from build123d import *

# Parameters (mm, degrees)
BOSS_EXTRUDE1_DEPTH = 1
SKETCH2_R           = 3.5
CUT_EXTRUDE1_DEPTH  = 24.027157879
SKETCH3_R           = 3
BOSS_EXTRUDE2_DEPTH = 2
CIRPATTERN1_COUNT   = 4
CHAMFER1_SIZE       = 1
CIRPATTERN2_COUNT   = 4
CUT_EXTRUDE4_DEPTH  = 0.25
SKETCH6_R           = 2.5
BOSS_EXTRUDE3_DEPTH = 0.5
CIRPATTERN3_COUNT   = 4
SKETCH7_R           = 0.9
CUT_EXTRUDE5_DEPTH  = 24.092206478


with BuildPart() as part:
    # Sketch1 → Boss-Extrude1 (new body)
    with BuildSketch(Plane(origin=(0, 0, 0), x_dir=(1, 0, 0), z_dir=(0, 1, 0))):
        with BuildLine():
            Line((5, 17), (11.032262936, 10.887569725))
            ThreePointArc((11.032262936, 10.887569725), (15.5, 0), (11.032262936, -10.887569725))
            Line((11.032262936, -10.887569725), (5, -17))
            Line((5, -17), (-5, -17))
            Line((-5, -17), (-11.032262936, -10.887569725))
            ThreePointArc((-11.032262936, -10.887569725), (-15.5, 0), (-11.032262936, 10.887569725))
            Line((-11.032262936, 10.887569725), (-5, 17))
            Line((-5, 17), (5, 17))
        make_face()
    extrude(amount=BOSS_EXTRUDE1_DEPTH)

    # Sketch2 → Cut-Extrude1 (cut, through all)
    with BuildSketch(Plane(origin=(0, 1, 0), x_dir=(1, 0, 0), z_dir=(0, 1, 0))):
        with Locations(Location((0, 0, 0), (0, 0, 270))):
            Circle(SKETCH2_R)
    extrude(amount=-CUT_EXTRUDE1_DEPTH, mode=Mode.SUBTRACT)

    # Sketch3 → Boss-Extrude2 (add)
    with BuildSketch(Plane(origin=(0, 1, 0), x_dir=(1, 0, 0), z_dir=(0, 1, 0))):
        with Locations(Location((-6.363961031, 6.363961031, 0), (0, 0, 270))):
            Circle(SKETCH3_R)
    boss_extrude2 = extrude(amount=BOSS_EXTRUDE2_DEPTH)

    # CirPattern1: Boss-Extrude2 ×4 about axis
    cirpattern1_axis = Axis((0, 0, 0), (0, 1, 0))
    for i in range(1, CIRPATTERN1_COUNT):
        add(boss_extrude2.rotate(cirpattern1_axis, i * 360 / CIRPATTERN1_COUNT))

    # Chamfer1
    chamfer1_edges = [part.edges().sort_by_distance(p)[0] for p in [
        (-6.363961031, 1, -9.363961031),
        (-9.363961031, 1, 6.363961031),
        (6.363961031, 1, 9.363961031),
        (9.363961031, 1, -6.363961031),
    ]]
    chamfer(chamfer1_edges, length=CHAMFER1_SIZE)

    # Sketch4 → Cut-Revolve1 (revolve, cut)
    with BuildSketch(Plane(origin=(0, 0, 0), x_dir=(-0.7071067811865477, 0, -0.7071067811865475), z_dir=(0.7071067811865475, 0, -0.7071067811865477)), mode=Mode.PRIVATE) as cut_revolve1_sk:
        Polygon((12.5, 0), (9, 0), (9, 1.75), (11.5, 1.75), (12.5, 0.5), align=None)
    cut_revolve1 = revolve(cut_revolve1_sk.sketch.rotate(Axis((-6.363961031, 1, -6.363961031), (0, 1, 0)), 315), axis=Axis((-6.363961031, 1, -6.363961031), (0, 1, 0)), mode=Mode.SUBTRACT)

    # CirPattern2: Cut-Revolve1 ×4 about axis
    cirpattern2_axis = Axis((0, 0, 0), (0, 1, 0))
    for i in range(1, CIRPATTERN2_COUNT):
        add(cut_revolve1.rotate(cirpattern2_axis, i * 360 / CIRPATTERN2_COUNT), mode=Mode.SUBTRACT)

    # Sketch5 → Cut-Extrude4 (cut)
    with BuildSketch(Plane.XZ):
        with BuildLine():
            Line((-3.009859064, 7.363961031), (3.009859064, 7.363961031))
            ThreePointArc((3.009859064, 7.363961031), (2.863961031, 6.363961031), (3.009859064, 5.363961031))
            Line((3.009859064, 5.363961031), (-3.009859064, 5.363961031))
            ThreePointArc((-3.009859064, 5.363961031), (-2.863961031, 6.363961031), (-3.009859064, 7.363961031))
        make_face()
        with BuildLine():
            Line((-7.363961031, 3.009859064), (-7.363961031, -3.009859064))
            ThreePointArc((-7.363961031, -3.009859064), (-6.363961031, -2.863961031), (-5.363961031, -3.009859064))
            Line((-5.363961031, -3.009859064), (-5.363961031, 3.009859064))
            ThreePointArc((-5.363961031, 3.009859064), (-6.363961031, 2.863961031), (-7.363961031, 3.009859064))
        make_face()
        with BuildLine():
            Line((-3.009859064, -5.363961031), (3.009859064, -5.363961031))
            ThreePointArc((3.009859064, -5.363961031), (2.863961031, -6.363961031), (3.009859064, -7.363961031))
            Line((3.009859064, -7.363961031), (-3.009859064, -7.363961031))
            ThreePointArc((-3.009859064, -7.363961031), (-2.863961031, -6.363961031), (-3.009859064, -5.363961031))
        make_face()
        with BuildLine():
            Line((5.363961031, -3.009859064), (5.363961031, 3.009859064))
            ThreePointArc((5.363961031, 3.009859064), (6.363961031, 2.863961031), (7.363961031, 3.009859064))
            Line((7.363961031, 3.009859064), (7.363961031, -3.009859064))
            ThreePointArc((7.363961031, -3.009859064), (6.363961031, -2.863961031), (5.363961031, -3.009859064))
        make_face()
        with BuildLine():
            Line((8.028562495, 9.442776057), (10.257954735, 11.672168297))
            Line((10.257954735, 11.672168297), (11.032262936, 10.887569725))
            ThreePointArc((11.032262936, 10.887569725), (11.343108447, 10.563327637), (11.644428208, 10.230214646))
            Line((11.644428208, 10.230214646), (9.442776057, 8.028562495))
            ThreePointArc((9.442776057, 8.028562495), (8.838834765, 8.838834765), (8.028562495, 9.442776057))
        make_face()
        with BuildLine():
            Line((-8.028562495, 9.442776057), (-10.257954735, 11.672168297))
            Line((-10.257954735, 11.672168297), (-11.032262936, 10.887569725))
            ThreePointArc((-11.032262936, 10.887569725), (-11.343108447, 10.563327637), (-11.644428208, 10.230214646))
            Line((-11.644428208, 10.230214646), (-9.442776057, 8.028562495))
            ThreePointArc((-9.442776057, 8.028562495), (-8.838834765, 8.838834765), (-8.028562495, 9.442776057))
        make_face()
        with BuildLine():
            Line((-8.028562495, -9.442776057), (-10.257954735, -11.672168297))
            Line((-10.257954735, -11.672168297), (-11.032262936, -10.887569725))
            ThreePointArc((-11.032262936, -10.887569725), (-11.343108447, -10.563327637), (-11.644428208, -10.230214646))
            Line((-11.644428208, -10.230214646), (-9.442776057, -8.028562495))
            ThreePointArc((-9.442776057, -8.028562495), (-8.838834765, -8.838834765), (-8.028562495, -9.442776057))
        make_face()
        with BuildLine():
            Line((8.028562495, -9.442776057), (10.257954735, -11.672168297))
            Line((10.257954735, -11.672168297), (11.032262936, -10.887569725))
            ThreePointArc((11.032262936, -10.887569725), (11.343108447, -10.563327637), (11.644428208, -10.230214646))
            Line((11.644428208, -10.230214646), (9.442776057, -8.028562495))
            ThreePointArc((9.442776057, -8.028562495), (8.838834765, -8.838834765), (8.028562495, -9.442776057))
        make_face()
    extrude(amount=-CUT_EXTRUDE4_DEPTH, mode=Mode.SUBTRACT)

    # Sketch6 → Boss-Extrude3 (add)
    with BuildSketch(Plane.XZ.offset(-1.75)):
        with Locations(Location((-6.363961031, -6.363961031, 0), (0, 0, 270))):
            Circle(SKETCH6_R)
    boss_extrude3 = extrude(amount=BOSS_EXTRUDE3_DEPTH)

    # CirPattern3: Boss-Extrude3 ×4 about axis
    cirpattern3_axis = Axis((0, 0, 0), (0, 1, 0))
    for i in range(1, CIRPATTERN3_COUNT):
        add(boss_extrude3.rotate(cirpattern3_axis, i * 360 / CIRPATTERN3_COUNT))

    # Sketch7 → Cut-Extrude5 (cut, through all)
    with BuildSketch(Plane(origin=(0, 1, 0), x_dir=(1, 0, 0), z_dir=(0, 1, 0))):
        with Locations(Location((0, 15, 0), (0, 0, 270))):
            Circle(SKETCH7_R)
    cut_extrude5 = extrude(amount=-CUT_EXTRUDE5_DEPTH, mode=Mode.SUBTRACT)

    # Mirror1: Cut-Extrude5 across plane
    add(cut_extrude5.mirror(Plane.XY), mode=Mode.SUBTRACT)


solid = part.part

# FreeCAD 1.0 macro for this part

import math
import FreeCAD as App
import Part
import Sketcher
from FreeCAD import Vector


def edges_at(feature, points):
    """Names of the edges that pass closest to the given points."""
    edges = feature.Shape.Edges
    near = lambda p: min(range(len(edges)), key=lambda i: edges[i].distToShape(Part.Vertex(*p))[0])
    return sorted({f"Edge{near(p) + 1}" for p in points})


def add_polygon(sketch, points):
    """Adds a closed chain of lines whose ends are joined by coincident constraints."""
    first, n = sketch.GeometryCount, len(points)
    for a, b in zip(points, points[1:] + points[:1]):
        sketch.addGeometry(Part.LineSegment(App.Vector(*a, 0), App.Vector(*b, 0)), False)
    for i in range(n):
        sketch.addConstraint(Sketcher.Constraint("Coincident", first + i, 2, first + (i + 1) % n, 1))

doc = App.newDocument("Part")
body = doc.addObject("PartDesign::Body", "Body")

# Sketch on XZ plane
sketch1 = body.newObject("Sketcher::SketchObject", "Sketch")
sketch1.AttachmentSupport = (doc.getObject("XZ_Plane"), [""])
sketch1.MapMode = "FlatFace"
sketch1.addGeometry([
    Part.LineSegment(Vector(11, -11, 0), Vector(5, -17, 0)),  # 0
    Part.LineSegment(Vector(5, -17, 0), Vector(-5, -17, 0)),  # 1
    Part.LineSegment(Vector(-5, -17, 0), Vector(-11, -11, 0)),  # 2
    Part.ArcOfCircle(Part.Circle(Vector(0, 0, 0), Vector(0, 0, 1), 16), math.radians(135), math.radians(225)),  # 3
    Part.LineSegment(Vector(-11, 11, 0), Vector(-5, 17, 0)),  # 4
    Part.LineSegment(Vector(-5, 17, 0), Vector(5, 17, 0)),  # 5
    Part.LineSegment(Vector(5, 17, 0), Vector(11, 11, 0)),  # 6
    Part.ArcOfCircle(Part.Circle(Vector(0, 0, 0), Vector(0, 0, 1), 16), math.radians(-45), math.radians(45)),  # 7
], False)
sketch1.addConstraint([
    Sketcher.Constraint("Coincident", 0, 2, 1, 1),
    Sketcher.Constraint("Coincident", 1, 2, 2, 1),
    Sketcher.Constraint("Tangent", 2, 2, 3, 2),
    Sketcher.Constraint("Tangent", 3, 1, 4, 1),
    Sketcher.Constraint("Coincident", 4, 2, 5, 1),
    Sketcher.Constraint("Coincident", 5, 2, 6, 1),
    Sketcher.Constraint("Tangent", 6, 2, 7, 2),
    Sketcher.Constraint("Tangent", 7, 1, 0, 1),
    Sketcher.Constraint("Horizontal", 1),
    Sketcher.Constraint("Horizontal", 5),
    Sketcher.Constraint("Coincident", 3, 3, -1, 1),
    Sketcher.Constraint("Coincident", 7, 3, -1, 1),
    Sketcher.Constraint("Equal", 3, 7),
    Sketcher.Constraint("Symmetric", 0, 2, 4, 2, -1, 1),
    Sketcher.Constraint("Parallel", 2, 6),
    Sketcher.Constraint("Horizontal", 3, 1, 6, 2),
    Sketcher.Constraint("Radius", 3, 15.5),
    Sketcher.Constraint("DistanceX", 1, 2, 1, 1, 10.0),
    Sketcher.Constraint("DistanceY", 0, 2, -1, 1, 17.0),
])
pad1 = body.newObject("PartDesign::Pad", "Pad")
pad1.Profile = sketch1
pad1.Length = 1
pad1.Reversed = True

# Sketch on XZ plane
sketch2 = body.newObject("Sketcher::SketchObject", "Sketch001")
sketch2.AttachmentSupport = (doc.getObject("XZ_Plane"), [""])
sketch2.MapMode = "FlatFace"
sketch2.AttachmentOffset = App.Placement(Vector(0, 0, -1), App.Rotation())
sketch2.addGeometry(Part.Circle(Vector(0, 0, 0), Vector(0, 0, 1), 3.5), False)
sketch2.addConstraint([
    Sketcher.Constraint("Coincident", 0, 3, -1, 1),
    Sketcher.Constraint("Diameter", 0, 7.0),
])
pocket1 = body.newObject("PartDesign::Pocket", "Pocket")
pocket1.Profile = sketch2
pocket1.Type = "ThroughAll"
pocket1.Reversed = True

# Sketch on XZ plane
sketch3 = body.newObject("Sketcher::SketchObject", "Sketch002")
sketch3.AttachmentSupport = (doc.getObject("XZ_Plane"), [""])
sketch3.MapMode = "FlatFace"
sketch3.AttachmentOffset = App.Placement(Vector(0, 0, -1), App.Rotation())
sketch3.addGeometry(Part.Circle(Vector(-6.4, -6.4, 0), Vector(0, 0, 1), 3), False)
sketch3.addConstraint([
    Sketcher.Constraint("Diameter", 0, 6.0),
    Sketcher.Constraint("DistanceX", 0, 3, -1, 1, 6.363961),
    Sketcher.Constraint("DistanceY", 0, 3, -1, 1, 6.363961),
])
pad2 = body.newObject("PartDesign::Pad", "Pad001")
pad2.Profile = sketch3
pad2.Length = 2
pad2.Reversed = True
doc.recompute()

polarpattern = body.newObject("PartDesign::PolarPattern", "PolarPattern")
polarpattern.Originals = [pad2]
polarpattern.Axis = (doc.getObject("Y_Axis"), [""])
polarpattern.Angle = 360
polarpattern.Occurrences = 4
body.Tip = polarpattern
doc.recompute()

chamfer = body.newObject("PartDesign::Chamfer", "Chamfer")
chamfer.Base = (polarpattern, edges_at(polarpattern, [
    (-6.364, 1, -9.364),
    (-9.364, 1, 6.364),
    (6.364, 1, 9.364),
    (9.364, 1, -6.364),
]))
chamfer.Size = 1

# Sketch on an angled plane
sketch4 = body.newObject("Sketcher::SketchObject", "Sketch003")
sketch4.Placement = App.Placement(Vector(0, 0, 0), App.Rotation(Vector(-0.707106781, 0, -0.707106781), Vector(0, 0.999999999, 0), Vector(0.707106781, 0, -0.707106781), "ZXY"))
add_polygon(sketch4, [(9, 0), (12.5, 0), (12.5, 0.5), (11.5, 1.75), (9, 1.75)])  # lines 0-4
sketch4.addGeometry(Part.LineSegment(Vector(9, 0, 0), Vector(9, 1.75, 0)), True)  # axis
sketch4.addConstraint([
    Sketcher.Constraint("Horizontal", 0),
    Sketcher.Constraint("Vertical", 1),
    Sketcher.Constraint("Horizontal", 3),
    Sketcher.Constraint("Vertical", 4),
    Sketcher.Constraint("Vertical", 5),
    Sketcher.Constraint("Coincident", 5, 1, 4, 2),
    Sketcher.Constraint("PointOnObject", 0, 2, -1),
    Sketcher.Constraint("Horizontal", 2, 2, 5, 2),
    Sketcher.Constraint("DistanceX", 0, 1, 0, 2, 3.5),
    Sketcher.Constraint("DistanceX", 3, 2, 3, 1, 2.5),
    Sketcher.Constraint("DistanceY", 1, 1, 1, 2, 0.5),
    Sketcher.Constraint("DistanceX", -1, 1, 3, 2, 9.0),
    Sketcher.Constraint("DistanceY", 4, 2, 4, 1, 1.75),
])
groove = body.newObject("PartDesign::Groove", "Groove")
groove.Profile = sketch4
groove.ReferenceAxis = (sketch4, ["Axis0"])
groove.Angle = 360
doc.recompute()

polarpattern2 = body.newObject("PartDesign::PolarPattern", "PolarPattern001")
polarpattern2.Originals = [groove]
polarpattern2.Axis = (doc.getObject("Y_Axis"), [""])
polarpattern2.Angle = 360
polarpattern2.Occurrences = 4
body.Tip = polarpattern2

# Sketch on XZ plane
sketch5 = body.newObject("Sketcher::SketchObject", "Sketch004")
sketch5.AttachmentSupport = (doc.getObject("XZ_Plane"), [""])
sketch5.MapMode = "FlatFace"
sketch5.addGeometry([
    Part.LineSegment(Vector(3, 7.4, 0), Vector(-3, 7.4, 0)),  # 0
    Part.ArcOfCircle(Part.Circle(Vector(-6.4, 6.4, 0), Vector(0, 0, 1), 3.5), math.radians(-17), math.radians(17)),  # 1
    Part.LineSegment(Vector(-3, 5.4, 0), Vector(3, 5.4, 0)),  # 2
    Part.ArcOfCircle(Part.Circle(Vector(6.4, 6.4, 0), Vector(0, 0, 1), 3.5), math.radians(163), math.radians(197)),  # 3
    Part.LineSegment(Vector(-7.4, 3, 0), Vector(-7.4, -3, 0)),  # 4
    Part.ArcOfCircle(Part.Circle(Vector(-6.4, -6.4, 0), Vector(0, 0, 1), 3.5), math.radians(73), math.radians(107)),  # 5
    Part.LineSegment(Vector(-5.4, -3, 0), Vector(-5.4, 3, 0)),  # 6
    Part.ArcOfCircle(Part.Circle(Vector(-6.4, 6.4, 0), Vector(0, 0, 1), 3.5), math.radians(-107), math.radians(-73)),  # 7
    Part.LineSegment(Vector(3, -5.4, 0), Vector(-3, -5.4, 0)),  # 8
    Part.ArcOfCircle(Part.Circle(Vector(-6.4, -6.4, 0), Vector(0, 0, 1), 3.5), math.radians(-17), math.radians(17)),  # 9
    Part.LineSegment(Vector(-3, -7.4, 0), Vector(3, -7.4, 0)),  # 10
    Part.ArcOfCircle(Part.Circle(Vector(6.4, -6.4, 0), Vector(0, 0, 1), 3.5), math.radians(163), math.radians(197)),  # 11
    Part.LineSegment(Vector(5.4, 3, 0), Vector(5.4, -3, 0)),  # 12
    Part.ArcOfCircle(Part.Circle(Vector(6.4, -6.4, 0), Vector(0, 0, 1), 3.5), math.radians(73), math.radians(107)),  # 13
    Part.LineSegment(Vector(7.4, -3, 0), Vector(7.4, 3, 0)),  # 14
    Part.ArcOfCircle(Part.Circle(Vector(6.4, 6.4, 0), Vector(0, 0, 1), 3.5), math.radians(-107), math.radians(-73)),  # 15
    Part.LineSegment(Vector(10.3, 11.7, 0), Vector(8, 9.4, 0)),  # 16
    Part.ArcOfCircle(Part.Circle(Vector(6.4, 6.4, 0), Vector(0, 0, 1), 3.5), math.radians(28), math.radians(62)),  # 17
    Part.LineSegment(Vector(9.4, 8, 0), Vector(11.6, 10.2, 0)),  # 18
    Part.ArcOfCircle(Part.Circle(Vector(0, 0, 0), Vector(0, 0, 1), 15.5), math.radians(41.3), math.radians(44.62)),  # 19
    Part.LineSegment(Vector(11, 10.9, 0), Vector(10.3, 11.7, 0)),  # 20
    Part.LineSegment(Vector(-8, 9.4, 0), Vector(-10.3, 11.7, 0)),  # 21
    Part.LineSegment(Vector(-10.3, 11.7, 0), Vector(-11, 10.9, 0)),  # 22
    Part.ArcOfCircle(Part.Circle(Vector(0, 0, 0), Vector(0, 0, 1), 15.5), math.radians(135.38), math.radians(138.7)),  # 23
    Part.LineSegment(Vector(-11.6, 10.2, 0), Vector(-9.4, 8, 0)),  # 24
    Part.ArcOfCircle(Part.Circle(Vector(-6.4, 6.4, 0), Vector(0, 0, 1), 3.5), math.radians(118), math.radians(152)),  # 25
    Part.LineSegment(Vector(-10.3, -11.7, 0), Vector(-8, -9.4, 0)),  # 26
    Part.ArcOfCircle(Part.Circle(Vector(-6.4, -6.4, 0), Vector(0, 0, 1), 3.5), math.radians(-152), math.radians(-118)),  # 27
    Part.LineSegment(Vector(-9.4, -8, 0), Vector(-11.6, -10.2, 0)),  # 28
    Part.ArcOfCircle(Part.Circle(Vector(0, 0, 0), Vector(0, 0, 1), 15.5), math.radians(-138.7), math.radians(-135.38)),  # 29
    Part.LineSegment(Vector(-11, -10.9, 0), Vector(-10.3, -11.7, 0)),  # 30
    Part.LineSegment(Vector(8, -9.4, 0), Vector(10.3, -11.7, 0)),  # 31
    Part.LineSegment(Vector(10.3, -11.7, 0), Vector(11, -10.9, 0)),  # 32
    Part.ArcOfCircle(Part.Circle(Vector(0, 0, 0), Vector(0, 0, 1), 15.5), math.radians(-44.62), math.radians(-41.3)),  # 33
    Part.LineSegment(Vector(11.6, -10.2, 0), Vector(9.4, -8, 0)),  # 34
    Part.ArcOfCircle(Part.Circle(Vector(6.4, -6.4, 0), Vector(0, 0, 1), 3.5), math.radians(-62), math.radians(-28)),  # 35
], False)
sketch5.addConstraint([
    Sketcher.Constraint("Coincident", 0, 2, 1, 2),
    Sketcher.Constraint("Coincident", 1, 1, 2, 1),
    Sketcher.Constraint("Coincident", 2, 2, 3, 2),
    Sketcher.Constraint("Coincident", 3, 1, 0, 1),
    Sketcher.Constraint("Coincident", 4, 2, 5, 2),
    Sketcher.Constraint("Coincident", 5, 1, 6, 1),
    Sketcher.Constraint("Coincident", 6, 2, 7, 2),
    Sketcher.Constraint("Coincident", 7, 1, 4, 1),
    Sketcher.Constraint("Coincident", 8, 2, 9, 2),
    Sketcher.Constraint("Coincident", 9, 1, 10, 1),
    Sketcher.Constraint("Coincident", 10, 2, 11, 2),
    Sketcher.Constraint("Coincident", 11, 1, 8, 1),
    Sketcher.Constraint("Coincident", 12, 2, 13, 2),
    Sketcher.Constraint("Coincident", 13, 1, 14, 1),
    Sketcher.Constraint("Coincident", 14, 2, 15, 2),
    Sketcher.Constraint("Coincident", 15, 1, 12, 1),
    Sketcher.Constraint("Coincident", 16, 2, 17, 2),
    Sketcher.Constraint("Coincident", 17, 1, 18, 1),
    Sketcher.Constraint("Coincident", 18, 2, 19, 1),
    Sketcher.Constraint("Tangent", 19, 2, 20, 1),
    Sketcher.Constraint("Coincident", 20, 2, 16, 1),
    Sketcher.Constraint("Coincident", 21, 2, 22, 1),
    Sketcher.Constraint("Tangent", 22, 2, 23, 1),
    Sketcher.Constraint("Coincident", 23, 2, 24, 1),
    Sketcher.Constraint("Coincident", 24, 2, 25, 2),
    Sketcher.Constraint("Coincident", 25, 1, 21, 1),
    Sketcher.Constraint("Coincident", 26, 2, 27, 2),
    Sketcher.Constraint("Coincident", 27, 1, 28, 1),
    Sketcher.Constraint("Coincident", 28, 2, 29, 1),
    Sketcher.Constraint("Tangent", 29, 2, 30, 1),
    Sketcher.Constraint("Coincident", 30, 2, 26, 1),
    Sketcher.Constraint("Coincident", 31, 2, 32, 1),
    Sketcher.Constraint("Tangent", 32, 2, 33, 1),
    Sketcher.Constraint("Coincident", 33, 2, 34, 1),
    Sketcher.Constraint("Coincident", 34, 2, 35, 2),
    Sketcher.Constraint("Coincident", 35, 1, 31, 1),
    Sketcher.Constraint("Horizontal", 0),
    Sketcher.Constraint("Horizontal", 2),
    Sketcher.Constraint("Vertical", 4),
    Sketcher.Constraint("Vertical", 6),
    Sketcher.Constraint("Horizontal", 8),
    Sketcher.Constraint("Horizontal", 10),
    Sketcher.Constraint("Vertical", 12),
    Sketcher.Constraint("Vertical", 14),
    Sketcher.Constraint("Coincident", 19, 3, -1, 1),
    Sketcher.Constraint("Coincident", 23, 3, -1, 1),
    Sketcher.Constraint("Coincident", 29, 3, -1, 1),
    Sketcher.Constraint("Coincident", 33, 3, -1, 1),
    Sketcher.Constraint("Coincident", 7, 3, 1, 3),
    Sketcher.Constraint("Coincident", 9, 3, 5, 3),
    Sketcher.Constraint("Coincident", 13, 3, 11, 3),
    Sketcher.Constraint("Coincident", 15, 3, 3, 3),
    Sketcher.Constraint("Coincident", 17, 3, 3, 3),
    Sketcher.Constraint("Coincident", 25, 3, 1, 3),
    Sketcher.Constraint("Coincident", 27, 3, 5, 3),
    Sketcher.Constraint("Coincident", 35, 3, 11, 3),
    Sketcher.Constraint("Equal", 1, 3),
    Sketcher.Constraint("Equal", 3, 5),
    Sketcher.Constraint("Equal", 5, 7),
    Sketcher.Constraint("Equal", 7, 9),
    Sketcher.Constraint("Equal", 9, 11),
    Sketcher.Constraint("Equal", 11, 13),
    Sketcher.Constraint("Equal", 13, 15),
    Sketcher.Constraint("Equal", 15, 17),
    Sketcher.Constraint("Equal", 19, 23),
    Sketcher.Constraint("Equal", 17, 25),
    Sketcher.Constraint("Equal", 25, 27),
    Sketcher.Constraint("Equal", 23, 29),
    Sketcher.Constraint("Equal", 29, 33),
    Sketcher.Constraint("Equal", 27, 35),
    Sketcher.Constraint("Symmetric", 3, 3, 5, 3, -1, 1),
    Sketcher.Constraint("Symmetric", 1, 3, 11, 3, -1, 1),
    Sketcher.Constraint("Symmetric", 20, 2, 30, 2, -1, 1),
    Sketcher.Constraint("Symmetric", 21, 2, 31, 2, -1, 1),
    Sketcher.Constraint("Symmetric", 1, 3, 3, 3, -2),
    Sketcher.Constraint("Symmetric", 20, 2, 21, 2, -2),
    Sketcher.Constraint("Parallel", 16, 18),
    Sketcher.Constraint("Perpendicular", 18, 21),
    Sketcher.Constraint("Parallel", 21, 24),
    Sketcher.Constraint("Perpendicular", 24, 26),
    Sketcher.Constraint("Parallel", 26, 28),
    Sketcher.Constraint("Perpendicular", 28, 31),
    Sketcher.Constraint("Parallel", 31, 34),
    Sketcher.Constraint("Horizontal", 4, 2, 5, 1),
    Sketcher.Constraint("Horizontal", 5, 1, 12, 2),
    Sketcher.Constraint("Horizontal", 12, 2, 13, 1),
    Sketcher.Constraint("Horizontal", 18, 2, 23, 2),
    Sketcher.Constraint("Horizontal", 17, 1, 24, 2),
    Sketcher.Constraint("Horizontal", 28, 2, 33, 2),
    Sketcher.Constraint("Vertical", 0, 2, 1, 1),
    Sketcher.Constraint("Vertical", 1, 1, 8, 2),
    Sketcher.Constraint("Vertical", 8, 2, 9, 1),
    Sketcher.Constraint("Vertical", 24, 2, 27, 1),
    Sketcher.Constraint("Equal", 10, 4),
    Sketcher.Constraint("Radius", 1, 3.5),
    Sketcher.Constraint("Radius", 19, 15.499999),
    Sketcher.Constraint("DistanceY", 7, 3, 0, 2, 1.0),
    Sketcher.Constraint("DistanceX", 4, 2, 9, 3, 1.0),
    Sketcher.Constraint("DistanceX", 0, 2, 0, 1, 6.019718),
    Sketcher.Constraint("DistanceX", 15, 3, 16, 2, 1.664601),
    Sketcher.Constraint("DistanceY", 3, 3, 17, 1, 1.664601),
    Sketcher.Constraint("DistanceX", 16, 2, 19, 2, 3.0037),
])
pocket2 = body.newObject("PartDesign::Pocket", "Pocket001")
pocket2.Profile = sketch5
pocket2.Length = 0.25

# Sketch on XZ plane
sketch6 = body.newObject("Sketcher::SketchObject", "Sketch005")
sketch6.AttachmentSupport = (doc.getObject("XZ_Plane"), [""])
sketch6.MapMode = "FlatFace"
sketch6.AttachmentOffset = App.Placement(Vector(0, 0, -1.75), App.Rotation())
sketch6.addGeometry(Part.Circle(Vector(-6.4, -6.4, 0), Vector(0, 0, 1), 2.5), False)
sketch6.addConstraint([
    Sketcher.Constraint("Diameter", 0, 5.0),
    Sketcher.Constraint("DistanceX", 0, 3, -1, 1, 6.363961),
    Sketcher.Constraint("DistanceY", 0, 3, -1, 1, 6.363961),
])
pad3 = body.newObject("PartDesign::Pad", "Pad002")
pad3.Profile = sketch6
pad3.Length = 0.5
doc.recompute()

polarpattern3 = body.newObject("PartDesign::PolarPattern", "PolarPattern002")
polarpattern3.Originals = [pad3]
polarpattern3.Axis = (doc.getObject("Y_Axis"), [""])
polarpattern3.Angle = 360
polarpattern3.Occurrences = 4
body.Tip = polarpattern3

# Sketch on XZ plane
sketch7 = body.newObject("Sketcher::SketchObject", "Sketch006")
sketch7.AttachmentSupport = (doc.getObject("XZ_Plane"), [""])
sketch7.MapMode = "FlatFace"
sketch7.AttachmentOffset = App.Placement(Vector(0, 0, -1), App.Rotation())
sketch7.addGeometry(Part.Circle(Vector(0, -15, 0), Vector(0, 0, 1), 0.9), False)
sketch7.addConstraint([
    Sketcher.Constraint("PointOnObject", 0, 3, -2),
    Sketcher.Constraint("Diameter", 0, 1.8),
    Sketcher.Constraint("DistanceY", 0, 3, -1, 1, 15.0),
])
pocket3 = body.newObject("PartDesign::Pocket", "Pocket002")
pocket3.Profile = sketch7
pocket3.Type = "ThroughAll"
pocket3.Reversed = True
doc.recompute()

mirrored = body.newObject("PartDesign::Mirrored", "Mirrored")
mirrored.Originals = [pocket3]
mirrored.MirrorPlane = (doc.getObject("XY_Plane"), [""])
body.Tip = mirrored

doc.recompute()
